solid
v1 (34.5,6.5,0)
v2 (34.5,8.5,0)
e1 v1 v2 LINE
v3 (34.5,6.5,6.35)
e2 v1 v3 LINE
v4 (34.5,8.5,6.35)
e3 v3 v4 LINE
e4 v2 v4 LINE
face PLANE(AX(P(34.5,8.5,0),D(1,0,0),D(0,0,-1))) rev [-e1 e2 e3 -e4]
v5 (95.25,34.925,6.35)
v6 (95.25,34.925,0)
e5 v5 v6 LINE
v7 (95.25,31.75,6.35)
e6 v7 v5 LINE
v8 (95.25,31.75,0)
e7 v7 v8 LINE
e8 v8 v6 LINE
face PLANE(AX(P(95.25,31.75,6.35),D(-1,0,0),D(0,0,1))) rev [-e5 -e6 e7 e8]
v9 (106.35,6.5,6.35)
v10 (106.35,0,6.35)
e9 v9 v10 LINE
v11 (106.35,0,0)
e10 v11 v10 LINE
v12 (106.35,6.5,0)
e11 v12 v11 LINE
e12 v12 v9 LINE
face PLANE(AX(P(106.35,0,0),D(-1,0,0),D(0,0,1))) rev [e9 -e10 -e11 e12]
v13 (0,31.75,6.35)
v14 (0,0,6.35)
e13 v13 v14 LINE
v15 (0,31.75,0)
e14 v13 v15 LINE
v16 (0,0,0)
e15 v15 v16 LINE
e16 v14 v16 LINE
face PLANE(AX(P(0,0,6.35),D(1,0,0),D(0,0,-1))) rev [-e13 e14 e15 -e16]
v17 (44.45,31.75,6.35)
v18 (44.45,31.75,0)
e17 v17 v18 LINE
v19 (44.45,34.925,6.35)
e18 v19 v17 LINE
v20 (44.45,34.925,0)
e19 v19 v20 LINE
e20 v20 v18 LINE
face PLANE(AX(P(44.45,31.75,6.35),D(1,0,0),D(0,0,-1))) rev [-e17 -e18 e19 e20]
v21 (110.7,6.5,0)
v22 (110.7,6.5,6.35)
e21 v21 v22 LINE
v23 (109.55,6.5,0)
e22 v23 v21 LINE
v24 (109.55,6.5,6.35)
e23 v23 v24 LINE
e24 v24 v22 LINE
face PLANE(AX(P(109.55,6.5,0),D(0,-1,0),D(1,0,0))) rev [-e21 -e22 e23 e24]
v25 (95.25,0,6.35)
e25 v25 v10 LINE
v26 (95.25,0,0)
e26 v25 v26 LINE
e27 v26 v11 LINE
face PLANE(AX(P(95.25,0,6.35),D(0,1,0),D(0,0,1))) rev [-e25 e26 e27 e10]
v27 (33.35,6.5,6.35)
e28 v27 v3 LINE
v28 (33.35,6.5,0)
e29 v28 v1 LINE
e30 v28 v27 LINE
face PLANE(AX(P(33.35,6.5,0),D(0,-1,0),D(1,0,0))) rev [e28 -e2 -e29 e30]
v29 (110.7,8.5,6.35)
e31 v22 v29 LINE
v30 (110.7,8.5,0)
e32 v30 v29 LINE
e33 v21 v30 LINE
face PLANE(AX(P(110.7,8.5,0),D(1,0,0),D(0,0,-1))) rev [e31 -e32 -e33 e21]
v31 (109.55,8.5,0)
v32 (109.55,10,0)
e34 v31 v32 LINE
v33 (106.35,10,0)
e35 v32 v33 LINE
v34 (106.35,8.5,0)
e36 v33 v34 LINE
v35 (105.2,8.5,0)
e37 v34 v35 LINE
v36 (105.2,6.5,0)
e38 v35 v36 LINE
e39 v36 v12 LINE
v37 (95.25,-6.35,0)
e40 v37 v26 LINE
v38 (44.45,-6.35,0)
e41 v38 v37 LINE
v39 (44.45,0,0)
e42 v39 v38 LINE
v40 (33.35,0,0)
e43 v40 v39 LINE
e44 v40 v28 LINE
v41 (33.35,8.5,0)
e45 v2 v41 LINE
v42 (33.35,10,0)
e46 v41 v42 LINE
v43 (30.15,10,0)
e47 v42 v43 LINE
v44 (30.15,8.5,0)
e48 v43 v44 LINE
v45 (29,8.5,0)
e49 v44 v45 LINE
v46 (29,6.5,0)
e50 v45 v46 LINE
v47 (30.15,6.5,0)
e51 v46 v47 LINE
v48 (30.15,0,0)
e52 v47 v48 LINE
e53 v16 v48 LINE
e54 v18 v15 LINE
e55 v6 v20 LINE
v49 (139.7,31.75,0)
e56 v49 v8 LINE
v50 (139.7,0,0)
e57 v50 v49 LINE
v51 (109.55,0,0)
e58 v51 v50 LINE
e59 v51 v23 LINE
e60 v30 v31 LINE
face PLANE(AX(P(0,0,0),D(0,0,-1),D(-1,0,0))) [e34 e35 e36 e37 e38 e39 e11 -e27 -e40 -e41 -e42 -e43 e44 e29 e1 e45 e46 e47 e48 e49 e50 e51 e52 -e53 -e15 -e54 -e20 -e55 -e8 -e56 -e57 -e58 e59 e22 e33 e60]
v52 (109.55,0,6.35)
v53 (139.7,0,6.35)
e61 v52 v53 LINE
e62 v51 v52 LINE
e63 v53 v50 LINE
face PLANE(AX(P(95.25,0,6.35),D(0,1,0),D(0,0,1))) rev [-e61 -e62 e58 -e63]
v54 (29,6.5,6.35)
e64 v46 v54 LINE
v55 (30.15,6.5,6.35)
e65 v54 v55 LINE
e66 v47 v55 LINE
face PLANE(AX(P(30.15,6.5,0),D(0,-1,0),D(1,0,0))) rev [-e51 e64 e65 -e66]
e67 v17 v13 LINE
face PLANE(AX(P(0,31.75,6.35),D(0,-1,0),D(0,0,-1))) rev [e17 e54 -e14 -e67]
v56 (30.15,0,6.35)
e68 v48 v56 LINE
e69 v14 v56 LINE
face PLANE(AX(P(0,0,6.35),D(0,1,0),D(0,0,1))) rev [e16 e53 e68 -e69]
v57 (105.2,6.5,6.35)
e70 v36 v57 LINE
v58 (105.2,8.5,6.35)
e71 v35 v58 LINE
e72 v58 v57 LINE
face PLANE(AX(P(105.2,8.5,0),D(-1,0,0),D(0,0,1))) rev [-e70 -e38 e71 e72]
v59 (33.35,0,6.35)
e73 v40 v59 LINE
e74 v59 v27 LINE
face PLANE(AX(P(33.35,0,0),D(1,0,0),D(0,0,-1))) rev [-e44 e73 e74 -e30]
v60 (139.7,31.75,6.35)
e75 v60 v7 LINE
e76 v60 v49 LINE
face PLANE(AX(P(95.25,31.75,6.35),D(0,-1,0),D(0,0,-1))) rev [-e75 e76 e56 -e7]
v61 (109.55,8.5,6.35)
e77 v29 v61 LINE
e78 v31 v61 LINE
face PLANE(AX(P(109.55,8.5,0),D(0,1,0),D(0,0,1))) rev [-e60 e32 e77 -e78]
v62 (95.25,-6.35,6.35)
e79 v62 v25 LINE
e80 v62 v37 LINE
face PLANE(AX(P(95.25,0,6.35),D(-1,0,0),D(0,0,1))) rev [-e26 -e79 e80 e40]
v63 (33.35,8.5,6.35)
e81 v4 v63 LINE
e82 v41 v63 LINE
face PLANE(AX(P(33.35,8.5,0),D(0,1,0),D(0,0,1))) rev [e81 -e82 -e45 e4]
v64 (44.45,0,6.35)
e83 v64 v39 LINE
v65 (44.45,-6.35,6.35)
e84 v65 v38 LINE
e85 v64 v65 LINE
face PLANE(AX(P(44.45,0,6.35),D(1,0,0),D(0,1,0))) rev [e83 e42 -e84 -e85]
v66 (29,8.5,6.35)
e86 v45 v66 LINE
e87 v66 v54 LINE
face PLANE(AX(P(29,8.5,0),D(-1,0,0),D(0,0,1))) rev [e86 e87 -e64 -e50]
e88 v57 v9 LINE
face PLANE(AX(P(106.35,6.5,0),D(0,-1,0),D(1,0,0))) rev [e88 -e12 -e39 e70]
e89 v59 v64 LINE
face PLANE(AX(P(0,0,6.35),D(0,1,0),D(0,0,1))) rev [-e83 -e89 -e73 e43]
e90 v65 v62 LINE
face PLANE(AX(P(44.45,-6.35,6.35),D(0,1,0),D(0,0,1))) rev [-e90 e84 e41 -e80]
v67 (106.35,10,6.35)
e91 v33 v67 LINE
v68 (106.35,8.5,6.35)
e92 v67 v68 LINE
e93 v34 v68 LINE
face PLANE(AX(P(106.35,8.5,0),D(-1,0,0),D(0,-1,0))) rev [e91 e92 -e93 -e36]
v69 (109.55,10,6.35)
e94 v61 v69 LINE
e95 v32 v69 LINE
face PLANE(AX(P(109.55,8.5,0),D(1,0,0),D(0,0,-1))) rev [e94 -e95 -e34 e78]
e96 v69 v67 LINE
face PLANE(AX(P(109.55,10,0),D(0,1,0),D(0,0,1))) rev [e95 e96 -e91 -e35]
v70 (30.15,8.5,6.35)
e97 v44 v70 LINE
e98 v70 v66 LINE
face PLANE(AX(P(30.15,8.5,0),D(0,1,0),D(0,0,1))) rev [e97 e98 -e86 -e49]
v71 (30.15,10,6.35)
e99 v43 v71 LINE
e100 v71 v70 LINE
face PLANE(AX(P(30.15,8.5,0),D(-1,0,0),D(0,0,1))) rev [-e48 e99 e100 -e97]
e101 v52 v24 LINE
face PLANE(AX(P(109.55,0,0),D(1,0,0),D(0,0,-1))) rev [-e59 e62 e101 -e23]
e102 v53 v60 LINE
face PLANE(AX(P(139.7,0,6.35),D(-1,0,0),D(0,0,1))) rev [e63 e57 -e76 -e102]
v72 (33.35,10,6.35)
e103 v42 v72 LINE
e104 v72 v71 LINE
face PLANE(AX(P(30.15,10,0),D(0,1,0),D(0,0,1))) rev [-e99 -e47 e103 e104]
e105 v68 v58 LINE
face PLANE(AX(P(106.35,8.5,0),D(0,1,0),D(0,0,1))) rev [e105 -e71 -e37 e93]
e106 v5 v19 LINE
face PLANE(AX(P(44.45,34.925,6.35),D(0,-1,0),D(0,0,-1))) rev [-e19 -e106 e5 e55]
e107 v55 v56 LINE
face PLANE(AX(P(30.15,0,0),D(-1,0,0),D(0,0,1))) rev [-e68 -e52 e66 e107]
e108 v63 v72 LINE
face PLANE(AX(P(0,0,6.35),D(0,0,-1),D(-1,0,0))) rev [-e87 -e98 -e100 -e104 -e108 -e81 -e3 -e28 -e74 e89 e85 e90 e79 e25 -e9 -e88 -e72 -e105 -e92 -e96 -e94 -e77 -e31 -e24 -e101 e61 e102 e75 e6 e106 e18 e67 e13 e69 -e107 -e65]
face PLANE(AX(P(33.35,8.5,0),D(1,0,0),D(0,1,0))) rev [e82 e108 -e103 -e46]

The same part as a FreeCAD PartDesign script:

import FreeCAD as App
import Part
import Sketcher

V = App.Vector
Q = App.Units.Quantity

doc = App.newDocument("Part")
body = doc.addObject("PartDesign::Body", "Body")

sketch1 = body.newObject("Sketcher::SketchObject", "Sketch")
sketch1.AttachmentSupport = (doc.getObject("XY_Plane"), [""])
sketch1.MapMode = "FlatFace"
sketch1.addGeometry([
    Part.LineSegment(V(0, 0, 0), V(44.5, 0, 0)),
    Part.LineSegment(V(44.5, 0, 0), V(44.5, -6.3, 0)),
    Part.LineSegment(V(44.5, -6.3, 0), V(95.2, -6.3, 0)),
    Part.LineSegment(V(95.2, -6.3, 0), V(95.2, 0, 0)),
    Part.LineSegment(V(95.2, 0, 0), V(139.7, 0, 0)),
    Part.LineSegment(V(139.7, 0, 0), V(139.7, 31.8, 0)),
    Part.LineSegment(V(139.7, 31.8, 0), V(95.2, 31.8, 0)),
    Part.LineSegment(V(95.2, 31.8, 0), V(95.2, 34.9, 0)),
    Part.LineSegment(V(95.2, 34.9, 0), V(44.5, 34.9, 0)),
    Part.LineSegment(V(44.5, 34.9, 0), V(44.5, 31.8, 0)),
    Part.LineSegment(V(44.5, 31.8, 0), V(0, 31.8, 0)),
    Part.LineSegment(V(0, 31.8, 0), V(0, 0, 0)),
], False)
sketch1.addConstraint([
    Sketcher.Constraint("Coincident", 0, 2, 1, 1),
    Sketcher.Constraint("Coincident", 1, 2, 2, 1),
    Sketcher.Constraint("Coincident", 2, 2, 3, 1),
    Sketcher.Constraint("Coincident", 3, 2, 4, 1),
    Sketcher.Constraint("Coincident", 4, 2, 5, 1),
    Sketcher.Constraint("Coincident", 5, 2, 6, 1),
    Sketcher.Constraint("Coincident", 6, 2, 7, 1),
    Sketcher.Constraint("Coincident", 7, 2, 8, 1),
    Sketcher.Constraint("Coincident", 8, 2, 9, 1),
    Sketcher.Constraint("Coincident", 9, 2, 10, 1),
    Sketcher.Constraint("Coincident", 10, 2, 11, 1),
    Sketcher.Constraint("Coincident", 11, 2, 0, 1),
    Sketcher.Constraint("Horizontal", 0),
    Sketcher.Constraint("Vertical", 1),
    Sketcher.Constraint("Horizontal", 2),
    Sketcher.Constraint("Vertical", 3),
    Sketcher.Constraint("Horizontal", 4),
    Sketcher.Constraint("Vertical", 5),
    Sketcher.Constraint("Horizontal", 6),
    Sketcher.Constraint("Vertical", 7),
    Sketcher.Constraint("Horizontal", 8),
    Sketcher.Constraint("Vertical", 9),
    Sketcher.Constraint("Horizontal", 10),
    Sketcher.Constraint("Vertical", 11),
    Sketcher.Constraint("Coincident", 11, 2, -1, 1),
    Sketcher.Constraint("PointOnObject", 3, 2, -1),
    Sketcher.Constraint("Horizontal", 6, 2, 9, 2),
    Sketcher.Constraint("Vertical", 3, 2, 6, 2),
    Sketcher.Constraint("Vertical", 1, 2, 8, 2),
    Sketcher.Constraint("Equal", 0, 4),
    Sketcher.Constraint("DistanceX", 2, 1, 2, 2, Q("2 in")),
    Sketcher.Constraint("DistanceX", 0, 1, 0, 2, Q("1.75 in")),
    Sketcher.Constraint("DistanceY", 1, 2, 1, 1, Q("0.25 in")),
    Sketcher.Constraint("DistanceY", 5, 1, 5, 2, Q("1.25 in")),
    Sketcher.Constraint("DistanceY", 7, 1, 7, 2, Q("0.125 in")),
])
pad1 = body.newObject("PartDesign::Pad", "Pad")
pad1.Profile = sketch1
pad1.Length = Q("0.25 in")

sketch2 = body.newObject("Sketcher::SketchObject", "Sketch001")
sketch2.AttachmentSupport = (doc.getObject("XY_Plane"), [""])
sketch2.MapMode = "FlatFace"
sketch2.AttachmentOffset = App.Placement(V(0, 0, 0.25 * 25.4), App.Rotation())
sketch2.addGeometry([
    Part.LineSegment(V(30.1, 0, 0), V(33.4, 0, 0)),
    Part.LineSegment(V(33.4, 0, 0), V(33.4, 6.5, 0)),
    Part.LineSegment(V(33.4, 6.5, 0), V(34.5, 6.5, 0)),
    Part.LineSegment(V(34.5, 6.5, 0), V(34.5, 8.5, 0)),
    Part.LineSegment(V(34.5, 8.5, 0), V(33.4, 8.5, 0)),
    Part.LineSegment(V(33.4, 8.5, 0), V(33.4, 10, 0)),
    Part.LineSegment(V(33.4, 10, 0), V(30.1, 10, 0)),
    Part.LineSegment(V(30.1, 10, 0), V(30.1, 8.5, 0)),
    Part.LineSegment(V(30.1, 8.5, 0), V(29, 8.5, 0)),
    Part.LineSegment(V(29, 8.5, 0), V(29, 6.5, 0)),
    Part.LineSegment(V(29, 6.5, 0), V(30.1, 6.5, 0)),
    Part.LineSegment(V(30.1, 6.5, 0), V(30.1, 0, 0)),
    Part.LineSegment(V(109.5, 8.5, 0), V(109.5, 10, 0)),
    Part.LineSegment(V(109.5, 10, 0), V(106.3, 10, 0)),
    Part.LineSegment(V(106.3, 10, 0), V(106.3, 8.5, 0)),
    Part.LineSegment(V(106.3, 8.5, 0), V(105.2, 8.5, 0)),
    Part.LineSegment(V(105.2, 8.5, 0), V(105.2, 6.5, 0)),
    Part.LineSegment(V(105.2, 6.5, 0), V(106.3, 6.5, 0)),
    Part.LineSegment(V(106.3, 6.5, 0), V(106.3, 0, 0)),
    Part.LineSegment(V(106.3, 0, 0), V(109.5, 0, 0)),
    Part.LineSegment(V(109.5, 0, 0), V(109.5, 6.5, 0)),
    Part.LineSegment(V(109.5, 6.5, 0), V(110.7, 6.5, 0)),
    Part.LineSegment(V(110.7, 6.5, 0), V(110.7, 8.5, 0)),
    Part.LineSegment(V(110.7, 8.5, 0), V(109.5, 8.5, 0)),
], False)
sketch2.addConstraint([
    Sketcher.Constraint("Coincident", 0, 2, 1, 1),
    Sketcher.Constraint("Coincident", 1, 2, 2, 1),
    Sketcher.Constraint("Coincident", 2, 2, 3, 1),
    Sketcher.Constraint("Coincident", 3, 2, 4, 1),
    Sketcher.Constraint("Coincident", 4, 2, 5, 1),
    Sketcher.Constraint("Coincident", 5, 2, 6, 1),
    Sketcher.Constraint("Coincident", 6, 2, 7, 1),
    Sketcher.Constraint("Coincident", 7, 2, 8, 1),
    Sketcher.Constraint("Coincident", 8, 2, 9, 1),
    Sketcher.Constraint("Coincident", 9, 2, 10, 1),
    Sketcher.Constraint("Coincident", 10, 2, 11, 1),
    Sketcher.Constraint("Coincident", 11, 2, 0, 1),
    Sketcher.Constraint("Coincident", 12, 2, 13, 1),
    Sketcher.Constraint("Coincident", 13, 2, 14, 1),
    Sketcher.Constraint("Coincident", 14, 2, 15, 1),
    Sketcher.Constraint("Coincident", 15, 2, 16, 1),
    Sketcher.Constraint("Coincident", 16, 2, 17, 1),
    Sketcher.Constraint("Coincident", 17, 2, 18, 1),
    Sketcher.Constraint("Coincident", 18, 2, 19, 1),
    Sketcher.Constraint("Coincident", 19, 2, 20, 1),
    Sketcher.Constraint("Coincident", 20, 2, 21, 1),
    Sketcher.Constraint("Coincident", 21, 2, 22, 1),
    Sketcher.Constraint("Coincident", 22, 2, 23, 1),
    Sketcher.Constraint("Coincident", 23, 2, 12, 1),
    Sketcher.Constraint("Horizontal", 0),
    Sketcher.Constraint("Vertical", 1),
    Sketcher.Constraint("Horizontal", 2),
    Sketcher.Constraint("Vertical", 3),
    Sketcher.Constraint("Horizontal", 4),
    Sketcher.Constraint("Vertical", 5),
    Sketcher.Constraint("Horizontal", 6),
    Sketcher.Constraint("Vertical", 7),
    Sketcher.Constraint("Horizontal", 8),
    Sketcher.Constraint("Vertical", 9),
    Sketcher.Constraint("Horizontal", 10),
    Sketcher.Constraint("Vertical", 11),
    Sketcher.Constraint("Vertical", 12),
    Sketcher.Constraint("Horizontal", 13),
    Sketcher.Constraint("Vertical", 14),
    Sketcher.Constraint("Horizontal", 15),
    Sketcher.Constraint("Vertical", 16),
    Sketcher.Constraint("Horizontal", 17),
    Sketcher.Constraint("Vertical", 18),
    Sketcher.Constraint("Horizontal", 19),
    Sketcher.Constraint("Vertical", 20),
    Sketcher.Constraint("Horizontal", 21),
    Sketcher.Constraint("Vertical", 22),
    Sketcher.Constraint("Horizontal", 23),
    Sketcher.Constraint("PointOnObject", 0, 2, -1),
    Sketcher.Constraint("PointOnObject", 18, 2, -1),
    Sketcher.Constraint("Horizontal", 4, 2, 7, 2),
    Sketcher.Constraint("Horizontal", 2, 2, 9, 2),
    Sketcher.Constraint("Horizontal", 6, 2, 12, 2),
    Sketcher.Constraint("Horizontal", 8, 2, 14, 2),
    Sketcher.Constraint("Horizontal", 10, 2, 16, 2),
    Sketcher.Constraint("Horizontal", 17, 2, 20, 2),
    Sketcher.Constraint("Horizontal", 15, 2, 22, 2),
    Sketcher.Constraint("Vertical", 1, 2, 4, 2),
    Sketcher.Constraint("Vertical", 7, 2, 10, 2),
    Sketcher.Constraint("Vertical", 14, 2, 17, 2),
    Sketcher.Constraint("Vertical", 12, 2, 19, 2),
    Sketcher.Constraint("Equal", 4, 8),
    Sketcher.Constraint("Equal", 6, 13),
    Sketcher.Constraint("Equal", 10, 15),
    Sketcher.Constraint("Equal", 17, 21),
    Sketcher.Constraint("DistanceX", 5, 2, 12, 2, Q("3 in")),
    Sketcher.Constraint("DistanceX", 0, 1, 0, 2, 3.2),
    Sketcher.Constraint("DistanceX", 2, 1, 2, 2, 1.15),
    Sketcher.Constraint("DistanceY", 1, 1, 1, 2, 6.5),
    Sketcher.Constraint("DistanceY", 3, 1, 3, 2, 2.0),
    Sketcher.Constraint("DistanceY", 5, 1, 5, 2, 1.5),
    Sketcher.Constraint("DistanceX", -1, 1, 0, 2, 33.35),
])
pocket1 = body.newObject("PartDesign::Pocket", "Pocket")
pocket1.Profile = sketch2
pocket1.Type = "ThroughAll"

doc.recompute()
